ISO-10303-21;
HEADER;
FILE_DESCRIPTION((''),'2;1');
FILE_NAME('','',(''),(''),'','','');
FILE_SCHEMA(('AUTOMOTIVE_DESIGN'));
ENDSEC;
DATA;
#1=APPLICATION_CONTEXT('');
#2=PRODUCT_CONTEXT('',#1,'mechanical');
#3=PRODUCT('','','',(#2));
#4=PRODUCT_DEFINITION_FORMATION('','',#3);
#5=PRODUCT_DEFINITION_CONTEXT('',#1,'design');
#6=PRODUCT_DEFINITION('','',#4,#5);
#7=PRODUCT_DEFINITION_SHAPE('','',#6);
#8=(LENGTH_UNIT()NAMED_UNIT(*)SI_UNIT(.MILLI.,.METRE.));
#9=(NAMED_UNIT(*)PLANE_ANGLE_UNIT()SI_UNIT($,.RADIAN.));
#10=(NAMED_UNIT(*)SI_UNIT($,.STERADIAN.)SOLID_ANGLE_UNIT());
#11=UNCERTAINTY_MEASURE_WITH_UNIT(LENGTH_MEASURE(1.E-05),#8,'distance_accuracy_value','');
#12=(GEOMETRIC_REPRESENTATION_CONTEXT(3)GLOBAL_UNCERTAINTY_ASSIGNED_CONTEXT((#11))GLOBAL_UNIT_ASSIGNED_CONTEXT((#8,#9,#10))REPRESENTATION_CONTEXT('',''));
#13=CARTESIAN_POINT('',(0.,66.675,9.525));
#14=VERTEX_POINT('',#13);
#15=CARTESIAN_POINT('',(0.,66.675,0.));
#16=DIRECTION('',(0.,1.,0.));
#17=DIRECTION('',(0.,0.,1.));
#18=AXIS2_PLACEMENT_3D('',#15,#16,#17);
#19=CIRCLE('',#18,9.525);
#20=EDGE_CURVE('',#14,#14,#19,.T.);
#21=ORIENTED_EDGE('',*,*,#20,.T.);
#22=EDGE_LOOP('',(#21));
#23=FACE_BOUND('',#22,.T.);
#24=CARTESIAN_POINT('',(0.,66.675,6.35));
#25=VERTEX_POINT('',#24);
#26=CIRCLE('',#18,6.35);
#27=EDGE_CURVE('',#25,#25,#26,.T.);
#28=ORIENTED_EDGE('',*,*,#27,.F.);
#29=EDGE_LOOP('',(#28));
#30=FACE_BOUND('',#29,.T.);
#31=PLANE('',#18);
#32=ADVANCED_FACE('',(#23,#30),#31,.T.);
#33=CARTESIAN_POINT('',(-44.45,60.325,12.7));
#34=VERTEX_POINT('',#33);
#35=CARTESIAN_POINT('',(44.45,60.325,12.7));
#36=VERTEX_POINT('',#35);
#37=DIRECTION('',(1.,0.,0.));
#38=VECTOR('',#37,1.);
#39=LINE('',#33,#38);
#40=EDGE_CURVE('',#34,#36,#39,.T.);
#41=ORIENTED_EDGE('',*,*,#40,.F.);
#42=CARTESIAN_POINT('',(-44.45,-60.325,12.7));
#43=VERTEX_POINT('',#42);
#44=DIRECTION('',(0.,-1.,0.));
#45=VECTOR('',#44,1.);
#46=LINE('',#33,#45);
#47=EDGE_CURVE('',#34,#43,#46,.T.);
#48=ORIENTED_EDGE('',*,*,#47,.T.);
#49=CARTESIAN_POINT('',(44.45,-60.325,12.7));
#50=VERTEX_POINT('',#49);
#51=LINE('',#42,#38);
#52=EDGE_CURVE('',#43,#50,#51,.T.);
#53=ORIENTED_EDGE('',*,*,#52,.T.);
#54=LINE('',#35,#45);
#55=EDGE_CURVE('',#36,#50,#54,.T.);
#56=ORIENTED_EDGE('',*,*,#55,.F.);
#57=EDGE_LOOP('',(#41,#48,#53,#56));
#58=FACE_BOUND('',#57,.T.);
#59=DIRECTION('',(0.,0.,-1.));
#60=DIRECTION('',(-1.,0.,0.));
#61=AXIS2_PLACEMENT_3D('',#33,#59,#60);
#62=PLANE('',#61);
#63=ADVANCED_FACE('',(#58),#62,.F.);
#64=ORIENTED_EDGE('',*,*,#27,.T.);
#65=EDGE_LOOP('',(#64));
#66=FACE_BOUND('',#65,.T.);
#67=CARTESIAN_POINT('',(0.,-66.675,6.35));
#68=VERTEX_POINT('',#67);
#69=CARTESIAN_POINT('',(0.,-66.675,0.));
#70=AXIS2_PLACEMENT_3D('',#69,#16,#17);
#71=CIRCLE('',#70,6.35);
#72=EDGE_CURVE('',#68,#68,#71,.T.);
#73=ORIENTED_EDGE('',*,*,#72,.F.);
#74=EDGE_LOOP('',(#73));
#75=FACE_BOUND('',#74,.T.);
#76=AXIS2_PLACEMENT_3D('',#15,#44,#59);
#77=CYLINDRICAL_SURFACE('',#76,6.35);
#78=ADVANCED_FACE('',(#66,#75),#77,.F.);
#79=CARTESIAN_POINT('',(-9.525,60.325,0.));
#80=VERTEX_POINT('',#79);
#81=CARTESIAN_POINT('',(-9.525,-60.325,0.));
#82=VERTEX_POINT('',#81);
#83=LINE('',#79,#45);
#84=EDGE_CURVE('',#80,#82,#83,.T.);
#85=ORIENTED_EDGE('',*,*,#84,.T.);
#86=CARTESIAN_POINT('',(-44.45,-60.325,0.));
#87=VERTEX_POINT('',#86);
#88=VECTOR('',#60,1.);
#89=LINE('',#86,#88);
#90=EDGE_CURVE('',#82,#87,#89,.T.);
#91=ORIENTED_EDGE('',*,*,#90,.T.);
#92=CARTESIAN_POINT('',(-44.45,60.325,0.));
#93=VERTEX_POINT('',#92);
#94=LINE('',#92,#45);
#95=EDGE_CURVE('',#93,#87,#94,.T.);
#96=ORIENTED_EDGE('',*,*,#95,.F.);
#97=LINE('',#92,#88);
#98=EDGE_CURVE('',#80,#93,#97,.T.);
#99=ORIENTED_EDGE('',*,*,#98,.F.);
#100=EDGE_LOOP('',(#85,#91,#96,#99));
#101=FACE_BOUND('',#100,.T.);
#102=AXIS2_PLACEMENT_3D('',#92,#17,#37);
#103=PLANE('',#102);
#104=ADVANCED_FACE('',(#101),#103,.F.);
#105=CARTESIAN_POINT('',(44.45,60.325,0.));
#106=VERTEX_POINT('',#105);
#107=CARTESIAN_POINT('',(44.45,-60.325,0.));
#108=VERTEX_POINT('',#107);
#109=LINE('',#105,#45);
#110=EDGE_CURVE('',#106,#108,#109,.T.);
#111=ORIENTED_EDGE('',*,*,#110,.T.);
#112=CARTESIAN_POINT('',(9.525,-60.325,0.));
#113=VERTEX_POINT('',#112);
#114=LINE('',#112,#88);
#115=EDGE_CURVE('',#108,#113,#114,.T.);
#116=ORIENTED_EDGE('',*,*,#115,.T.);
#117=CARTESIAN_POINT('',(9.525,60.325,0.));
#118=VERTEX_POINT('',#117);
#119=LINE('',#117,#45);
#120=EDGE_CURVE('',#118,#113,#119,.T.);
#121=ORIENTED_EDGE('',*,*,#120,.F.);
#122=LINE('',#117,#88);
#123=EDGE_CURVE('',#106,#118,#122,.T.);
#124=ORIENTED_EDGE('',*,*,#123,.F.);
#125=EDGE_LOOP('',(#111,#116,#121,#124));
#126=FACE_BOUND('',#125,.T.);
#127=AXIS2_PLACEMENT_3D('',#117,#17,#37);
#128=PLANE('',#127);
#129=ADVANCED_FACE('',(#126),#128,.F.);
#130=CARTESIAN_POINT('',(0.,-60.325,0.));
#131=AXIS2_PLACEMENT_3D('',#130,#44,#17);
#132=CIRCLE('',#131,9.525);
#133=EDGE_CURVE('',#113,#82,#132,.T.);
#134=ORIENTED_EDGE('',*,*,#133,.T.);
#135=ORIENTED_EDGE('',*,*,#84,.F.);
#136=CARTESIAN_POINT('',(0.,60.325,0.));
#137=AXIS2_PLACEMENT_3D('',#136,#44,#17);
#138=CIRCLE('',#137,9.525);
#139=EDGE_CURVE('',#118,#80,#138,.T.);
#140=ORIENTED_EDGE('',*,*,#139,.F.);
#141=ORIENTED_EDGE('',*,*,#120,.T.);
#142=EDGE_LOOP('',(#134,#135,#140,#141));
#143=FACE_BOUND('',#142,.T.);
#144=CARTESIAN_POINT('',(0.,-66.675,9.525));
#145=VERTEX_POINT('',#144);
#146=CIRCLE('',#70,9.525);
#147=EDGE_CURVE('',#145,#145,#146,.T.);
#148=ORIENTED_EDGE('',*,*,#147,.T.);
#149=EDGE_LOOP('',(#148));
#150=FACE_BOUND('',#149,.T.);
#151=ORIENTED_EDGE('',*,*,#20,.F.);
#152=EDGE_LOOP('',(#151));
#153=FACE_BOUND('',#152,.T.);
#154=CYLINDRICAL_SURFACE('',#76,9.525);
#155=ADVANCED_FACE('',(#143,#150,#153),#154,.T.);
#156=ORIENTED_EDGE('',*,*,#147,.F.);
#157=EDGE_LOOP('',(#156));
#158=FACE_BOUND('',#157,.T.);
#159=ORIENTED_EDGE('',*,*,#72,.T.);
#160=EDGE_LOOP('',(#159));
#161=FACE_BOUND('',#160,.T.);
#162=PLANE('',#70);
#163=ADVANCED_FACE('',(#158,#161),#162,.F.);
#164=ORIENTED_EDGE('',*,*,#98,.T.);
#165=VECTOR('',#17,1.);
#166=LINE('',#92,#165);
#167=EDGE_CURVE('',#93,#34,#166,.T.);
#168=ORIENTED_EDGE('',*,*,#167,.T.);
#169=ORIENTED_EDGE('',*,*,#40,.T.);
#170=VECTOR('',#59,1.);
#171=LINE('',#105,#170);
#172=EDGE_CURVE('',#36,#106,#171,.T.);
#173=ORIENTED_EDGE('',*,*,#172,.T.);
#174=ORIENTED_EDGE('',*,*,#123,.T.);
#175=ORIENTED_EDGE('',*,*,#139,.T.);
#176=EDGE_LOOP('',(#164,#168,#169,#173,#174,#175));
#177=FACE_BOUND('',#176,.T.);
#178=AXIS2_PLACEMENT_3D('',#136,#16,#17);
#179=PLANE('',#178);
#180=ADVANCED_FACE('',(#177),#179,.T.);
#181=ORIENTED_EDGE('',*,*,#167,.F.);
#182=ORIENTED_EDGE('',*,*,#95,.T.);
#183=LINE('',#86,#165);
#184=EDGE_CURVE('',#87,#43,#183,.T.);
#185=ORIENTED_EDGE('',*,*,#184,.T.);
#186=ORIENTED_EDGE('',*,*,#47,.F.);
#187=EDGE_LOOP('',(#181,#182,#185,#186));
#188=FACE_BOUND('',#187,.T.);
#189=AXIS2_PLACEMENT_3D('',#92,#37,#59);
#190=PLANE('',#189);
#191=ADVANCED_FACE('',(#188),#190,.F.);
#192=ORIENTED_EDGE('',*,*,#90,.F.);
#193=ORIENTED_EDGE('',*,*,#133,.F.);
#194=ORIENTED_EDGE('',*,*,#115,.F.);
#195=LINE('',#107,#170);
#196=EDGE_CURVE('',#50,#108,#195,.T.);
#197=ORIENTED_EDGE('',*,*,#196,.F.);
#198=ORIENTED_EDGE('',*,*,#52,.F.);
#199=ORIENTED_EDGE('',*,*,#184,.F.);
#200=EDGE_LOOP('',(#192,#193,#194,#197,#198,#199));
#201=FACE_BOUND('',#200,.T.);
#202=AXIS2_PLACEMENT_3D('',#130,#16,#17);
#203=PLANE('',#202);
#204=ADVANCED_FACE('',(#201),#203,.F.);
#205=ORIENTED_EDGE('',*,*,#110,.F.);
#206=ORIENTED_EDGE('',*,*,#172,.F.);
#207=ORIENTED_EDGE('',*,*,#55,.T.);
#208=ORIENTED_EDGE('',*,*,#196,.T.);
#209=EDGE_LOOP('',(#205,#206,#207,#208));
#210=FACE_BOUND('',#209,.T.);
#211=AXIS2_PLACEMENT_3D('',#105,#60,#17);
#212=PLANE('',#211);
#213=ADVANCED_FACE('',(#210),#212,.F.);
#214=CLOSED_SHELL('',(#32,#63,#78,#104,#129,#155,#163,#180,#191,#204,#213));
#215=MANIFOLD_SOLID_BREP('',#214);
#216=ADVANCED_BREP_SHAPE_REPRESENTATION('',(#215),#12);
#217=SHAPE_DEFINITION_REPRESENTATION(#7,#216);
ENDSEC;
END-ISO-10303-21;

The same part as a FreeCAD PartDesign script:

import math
import FreeCAD as App
import Part
import Sketcher
Q = App.Units.Quantity

doc = App.newDocument("Part")
body = doc.addObject("PartDesign::Body", "Body")

# Sketch on XZ plane
sketch1 = doc.addObject("Sketcher::SketchObject", "Sketch")
body.addObject(sketch1)
sketch1.AttachmentSupport = (doc.XZ_Plane, [""])
sketch1.MapMode = "FlatFace"
sketch1.addGeometry(Part.Circle(App.Vector(0, 0, 0), App.Vector(0, 0, 1), 10), False)
sketch1.addGeometry(Part.Circle(App.Vector(0, 0, 0), App.Vector(0, 0, 1), 6), False)
sketch1.addConstraint(Sketcher.Constraint("Coincident", 0, 3, -1, 1))
sketch1.addConstraint(Sketcher.Constraint("Coincident", 1, 3, -1, 1))
sketch1.addConstraint(Sketcher.Constraint("Diameter", 1, Q("0.5 in")))
sketch1.addConstraint(Sketcher.Constraint("Diameter", 0, Q("0.75 in")))
pad1 = doc.addObject("PartDesign::Pad", "Pad")
body.addObject(pad1)
pad1.Profile = sketch1
pad1.Length = Q("5.25 in")
pad1.Midplane = True

# Sketch on XZ plane
sketch2 = doc.addObject("Sketcher::SketchObject", "Sketch001")
body.addObject(sketch2)
sketch2.AttachmentSupport = (doc.XZ_Plane, [""])
sketch2.MapMode = "FlatFace"
sketch2.addGeometry(Part.LineSegment(App.Vector(44, 0, 0), App.Vector(10, 0, 0)), False)
sketch2.addGeometry(Part.ArcOfCircle(Part.Circle(App.Vector(0, 0, 0), App.Vector(0, 0, 1), 10), math.radians(0), math.radians(180)), False)
sketch2.addGeometry(Part.LineSegment(App.Vector(-10, 0, 0), App.Vector(-44, 0, 0)), False)
sketch2.addGeometry(Part.LineSegment(App.Vector(-44, 0, 0), App.Vector(-44, 13, 0)), False)
sketch2.addGeometry(Part.LineSegment(App.Vector(-44, 13, 0), App.Vector(44, 13, 0)), False)
sketch2.addGeometry(Part.LineSegment(App.Vector(44, 13, 0), App.Vector(44, 0, 0)), False)
sketch2.addConstraint(Sketcher.Constraint("Coincident", 0, 2, 1, 1))
sketch2.addConstraint(Sketcher.Constraint("Coincident", 1, 2, 2, 1))
sketch2.addConstraint(Sketcher.Constraint("Coincident", 2, 2, 3, 1))
sketch2.addConstraint(Sketcher.Constraint("Coincident", 3, 2, 4, 1))
sketch2.addConstraint(Sketcher.Constraint("Coincident", 4, 2, 5, 1))
sketch2.addConstraint(Sketcher.Constraint("Coincident", 5, 2, 0, 1))
sketch2.addConstraint(Sketcher.Constraint("Horizontal", 0))
sketch2.addConstraint(Sketcher.Constraint("Horizontal", 2))
sketch2.addConstraint(Sketcher.Constraint("Vertical", 3))
sketch2.addConstraint(Sketcher.Constraint("Horizontal", 4))
sketch2.addConstraint(Sketcher.Constraint("Vertical", 5))
sketch2.addConstraint(Sketcher.Constraint("Coincident", 1, 3, -1, 1))
sketch2.addConstraint(Sketcher.Constraint("Symmetric", 2, 2, 5, 2, -1, 1))
sketch2.addConstraint(Sketcher.Constraint("PointOnObject", 0, 2, -1))
sketch2.addConstraint(Sketcher.Constraint("DistanceX", 4, 1, 4, 2, Q("3.5 in")))
sketch2.addConstraint(Sketcher.Constraint("DistanceY", 3, 1, 3, 2, Q("0.5 in")))
sketch2.addConstraint(Sketcher.Constraint("Radius", 1, Q("0.375 in")))
pad2 = doc.addObject("PartDesign::Pad", "Pad001")
body.addObject(pad2)
pad2.Profile = sketch2
pad2.Length = Q("4.75 in")
pad2.Midplane = True

doc.recompute()
